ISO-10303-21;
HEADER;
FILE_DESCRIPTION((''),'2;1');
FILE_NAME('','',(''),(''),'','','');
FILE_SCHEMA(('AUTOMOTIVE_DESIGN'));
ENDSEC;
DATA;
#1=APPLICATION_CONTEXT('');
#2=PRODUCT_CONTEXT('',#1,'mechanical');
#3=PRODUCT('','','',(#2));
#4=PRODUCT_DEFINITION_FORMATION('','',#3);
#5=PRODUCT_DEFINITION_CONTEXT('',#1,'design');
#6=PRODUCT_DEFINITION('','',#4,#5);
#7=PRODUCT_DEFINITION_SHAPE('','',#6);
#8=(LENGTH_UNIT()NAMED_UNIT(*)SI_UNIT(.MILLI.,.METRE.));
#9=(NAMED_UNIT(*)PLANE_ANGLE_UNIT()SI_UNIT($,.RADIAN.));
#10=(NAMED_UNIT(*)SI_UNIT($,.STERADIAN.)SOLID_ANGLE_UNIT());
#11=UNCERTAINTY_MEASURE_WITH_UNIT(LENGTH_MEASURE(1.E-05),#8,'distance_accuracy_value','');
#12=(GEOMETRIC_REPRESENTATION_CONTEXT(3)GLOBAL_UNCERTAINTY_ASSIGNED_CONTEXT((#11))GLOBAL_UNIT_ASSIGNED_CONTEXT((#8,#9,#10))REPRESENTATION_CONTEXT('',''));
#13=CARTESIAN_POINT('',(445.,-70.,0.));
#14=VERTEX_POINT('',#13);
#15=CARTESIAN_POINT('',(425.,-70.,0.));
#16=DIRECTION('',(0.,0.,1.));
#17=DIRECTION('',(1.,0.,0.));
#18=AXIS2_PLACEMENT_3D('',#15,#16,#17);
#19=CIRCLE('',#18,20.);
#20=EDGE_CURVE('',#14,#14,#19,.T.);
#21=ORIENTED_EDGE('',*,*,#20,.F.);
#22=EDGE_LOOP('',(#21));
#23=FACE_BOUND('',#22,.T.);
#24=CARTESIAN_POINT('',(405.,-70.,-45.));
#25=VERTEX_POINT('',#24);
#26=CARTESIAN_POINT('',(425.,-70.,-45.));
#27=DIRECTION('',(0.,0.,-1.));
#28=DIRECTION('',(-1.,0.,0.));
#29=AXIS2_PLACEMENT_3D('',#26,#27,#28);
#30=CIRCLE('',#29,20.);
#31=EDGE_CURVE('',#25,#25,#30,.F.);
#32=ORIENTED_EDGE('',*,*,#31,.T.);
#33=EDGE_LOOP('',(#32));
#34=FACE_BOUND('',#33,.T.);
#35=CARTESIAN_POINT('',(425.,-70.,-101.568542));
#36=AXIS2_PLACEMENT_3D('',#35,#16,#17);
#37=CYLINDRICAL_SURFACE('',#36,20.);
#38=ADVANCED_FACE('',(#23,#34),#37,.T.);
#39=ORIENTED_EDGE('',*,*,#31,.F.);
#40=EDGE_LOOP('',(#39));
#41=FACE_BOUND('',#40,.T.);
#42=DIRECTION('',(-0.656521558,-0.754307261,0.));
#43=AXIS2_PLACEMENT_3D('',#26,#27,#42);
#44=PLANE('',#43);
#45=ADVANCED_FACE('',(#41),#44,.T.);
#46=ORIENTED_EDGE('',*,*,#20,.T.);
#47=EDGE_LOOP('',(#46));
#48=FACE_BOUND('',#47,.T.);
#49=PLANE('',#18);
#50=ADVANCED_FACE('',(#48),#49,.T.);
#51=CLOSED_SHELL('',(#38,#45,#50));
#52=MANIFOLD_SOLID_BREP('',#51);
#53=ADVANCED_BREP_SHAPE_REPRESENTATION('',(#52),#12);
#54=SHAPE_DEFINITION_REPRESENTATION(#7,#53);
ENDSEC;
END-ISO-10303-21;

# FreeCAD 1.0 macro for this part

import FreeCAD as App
import Part
import Sketcher
from FreeCAD import Vector
Q = App.Units.Quantity

doc = App.newDocument("Part")
params = doc.addObject("Spreadsheet::Sheet", "Params")
for row, (alias, value) in enumerate([
    ("sketch1_diameter", "40 mm"),
    ("pad1_length", "45 mm"),
], start=1):
    params.set(f"A{row}", alias)
    params.set(f"B{row}", "=" + value)
    params.setAlias(f"B{row}", alias)

body = doc.addObject("PartDesign::Body", "Body")

# Sketch on XY plane
sketch1 = body.newObject("Sketcher::SketchObject", "Sketch")
sketch1.AttachmentSupport = (doc.getObject("XY_Plane"), [""])
sketch1.MapMode = "FlatFace"
sketch1.addGeometry(Part.Circle(Vector(425, -70, 0), Vector(0, 0, 1), 20), False)
sketch1.addConstraint([
    Sketcher.Constraint("Diameter", 0, Q("40 mm")),
    Sketcher.Constraint("DistanceX", -1, 1, 0, 3, Q("425 mm")),
    Sketcher.Constraint("DistanceY", 0, 3, -1, 1, Q("70 mm")),
])
sketch1.setExpression("Constraints[0]", "Params.sketch1_diameter")
pad1 = body.newObject("PartDesign::Pad", "Pad")
pad1.Profile = sketch1
pad1.setExpression("Length", "Params.pad1_length")
pad1.Reversed = True

doc.recompute()
